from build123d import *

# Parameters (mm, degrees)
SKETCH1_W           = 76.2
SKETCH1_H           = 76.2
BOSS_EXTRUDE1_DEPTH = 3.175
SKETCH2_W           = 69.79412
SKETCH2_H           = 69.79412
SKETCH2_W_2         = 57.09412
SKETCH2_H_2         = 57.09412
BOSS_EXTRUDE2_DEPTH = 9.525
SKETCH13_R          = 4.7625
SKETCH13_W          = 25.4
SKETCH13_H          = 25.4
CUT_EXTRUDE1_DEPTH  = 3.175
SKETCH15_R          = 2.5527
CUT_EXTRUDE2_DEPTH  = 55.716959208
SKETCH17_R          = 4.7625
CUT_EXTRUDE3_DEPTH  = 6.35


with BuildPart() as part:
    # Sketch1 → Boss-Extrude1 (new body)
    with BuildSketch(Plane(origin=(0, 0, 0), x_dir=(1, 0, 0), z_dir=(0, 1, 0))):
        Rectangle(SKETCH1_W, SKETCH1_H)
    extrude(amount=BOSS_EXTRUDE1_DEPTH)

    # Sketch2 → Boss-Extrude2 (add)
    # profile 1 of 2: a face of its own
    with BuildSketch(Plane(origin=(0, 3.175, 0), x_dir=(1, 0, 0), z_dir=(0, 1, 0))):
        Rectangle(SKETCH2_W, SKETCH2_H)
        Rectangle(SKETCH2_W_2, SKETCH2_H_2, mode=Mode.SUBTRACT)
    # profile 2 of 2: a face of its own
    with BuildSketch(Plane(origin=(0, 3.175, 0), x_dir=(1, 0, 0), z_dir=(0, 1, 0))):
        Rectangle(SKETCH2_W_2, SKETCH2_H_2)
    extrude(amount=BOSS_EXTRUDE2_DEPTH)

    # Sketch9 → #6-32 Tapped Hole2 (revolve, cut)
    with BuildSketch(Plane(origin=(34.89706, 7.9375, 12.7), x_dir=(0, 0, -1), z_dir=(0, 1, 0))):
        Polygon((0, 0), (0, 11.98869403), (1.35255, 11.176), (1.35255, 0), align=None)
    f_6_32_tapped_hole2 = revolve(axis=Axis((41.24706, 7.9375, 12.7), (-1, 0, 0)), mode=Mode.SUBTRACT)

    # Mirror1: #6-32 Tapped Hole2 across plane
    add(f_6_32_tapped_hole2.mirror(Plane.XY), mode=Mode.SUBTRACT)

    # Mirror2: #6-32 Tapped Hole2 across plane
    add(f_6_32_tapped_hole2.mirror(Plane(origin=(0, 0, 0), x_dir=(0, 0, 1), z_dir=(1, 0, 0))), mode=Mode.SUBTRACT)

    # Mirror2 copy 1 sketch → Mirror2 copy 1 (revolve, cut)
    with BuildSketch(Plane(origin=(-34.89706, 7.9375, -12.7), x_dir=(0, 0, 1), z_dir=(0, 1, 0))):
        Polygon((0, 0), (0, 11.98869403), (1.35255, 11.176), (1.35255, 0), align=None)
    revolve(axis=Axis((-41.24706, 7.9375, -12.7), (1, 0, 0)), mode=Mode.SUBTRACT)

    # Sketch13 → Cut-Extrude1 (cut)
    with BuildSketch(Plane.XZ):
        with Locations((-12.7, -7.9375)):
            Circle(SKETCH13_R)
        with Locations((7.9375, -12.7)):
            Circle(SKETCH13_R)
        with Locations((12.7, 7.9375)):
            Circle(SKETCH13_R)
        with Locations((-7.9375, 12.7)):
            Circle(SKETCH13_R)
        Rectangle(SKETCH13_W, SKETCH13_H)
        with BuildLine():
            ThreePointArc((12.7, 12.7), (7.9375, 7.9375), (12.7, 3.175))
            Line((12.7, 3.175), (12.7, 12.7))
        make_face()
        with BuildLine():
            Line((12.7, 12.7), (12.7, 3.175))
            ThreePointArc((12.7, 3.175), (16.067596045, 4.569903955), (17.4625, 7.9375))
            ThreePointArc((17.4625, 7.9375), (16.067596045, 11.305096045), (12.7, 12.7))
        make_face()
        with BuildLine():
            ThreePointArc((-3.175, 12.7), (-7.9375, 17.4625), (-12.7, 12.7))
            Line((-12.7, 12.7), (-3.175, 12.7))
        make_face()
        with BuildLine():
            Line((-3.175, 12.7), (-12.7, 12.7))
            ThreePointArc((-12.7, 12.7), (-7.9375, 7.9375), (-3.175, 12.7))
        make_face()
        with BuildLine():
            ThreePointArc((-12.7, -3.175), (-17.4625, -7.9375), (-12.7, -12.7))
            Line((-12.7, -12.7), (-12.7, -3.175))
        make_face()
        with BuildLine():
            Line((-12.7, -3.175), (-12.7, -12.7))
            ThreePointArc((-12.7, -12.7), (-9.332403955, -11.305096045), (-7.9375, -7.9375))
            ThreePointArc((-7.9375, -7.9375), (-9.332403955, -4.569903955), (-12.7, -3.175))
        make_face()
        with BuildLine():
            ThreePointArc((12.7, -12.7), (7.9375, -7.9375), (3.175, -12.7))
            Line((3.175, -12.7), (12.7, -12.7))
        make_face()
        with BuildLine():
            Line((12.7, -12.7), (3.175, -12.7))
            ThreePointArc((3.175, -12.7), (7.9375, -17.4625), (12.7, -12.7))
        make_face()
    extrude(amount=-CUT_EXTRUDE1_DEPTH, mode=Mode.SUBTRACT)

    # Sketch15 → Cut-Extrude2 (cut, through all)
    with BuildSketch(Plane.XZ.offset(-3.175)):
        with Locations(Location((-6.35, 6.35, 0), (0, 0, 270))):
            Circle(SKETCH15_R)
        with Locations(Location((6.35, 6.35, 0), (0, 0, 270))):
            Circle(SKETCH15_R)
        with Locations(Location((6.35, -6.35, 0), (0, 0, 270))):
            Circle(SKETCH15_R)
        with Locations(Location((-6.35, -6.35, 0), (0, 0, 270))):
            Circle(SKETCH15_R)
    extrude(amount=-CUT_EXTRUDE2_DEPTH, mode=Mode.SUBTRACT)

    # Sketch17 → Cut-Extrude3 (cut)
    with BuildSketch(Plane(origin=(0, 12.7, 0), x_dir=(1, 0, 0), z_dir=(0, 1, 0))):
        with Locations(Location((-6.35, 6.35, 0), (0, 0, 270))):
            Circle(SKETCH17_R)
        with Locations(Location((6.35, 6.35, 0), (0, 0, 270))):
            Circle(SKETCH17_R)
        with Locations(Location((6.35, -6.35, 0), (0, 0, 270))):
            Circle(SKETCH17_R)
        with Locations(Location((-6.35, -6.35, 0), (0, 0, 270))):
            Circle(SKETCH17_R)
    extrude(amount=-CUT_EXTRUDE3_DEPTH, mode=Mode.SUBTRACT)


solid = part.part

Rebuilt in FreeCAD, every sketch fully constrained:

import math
import FreeCAD as App
import Part
import Sketcher
from FreeCAD import Vector
Q = App.Units.Quantity


def add_polygon(sketch, points):
    """Adds a closed chain of lines whose ends are joined by coincident constraints."""
    first, n = sketch.GeometryCount, len(points)
    for a, b in zip(points, points[1:] + points[:1]):
        sketch.addGeometry(Part.LineSegment(App.Vector(*a, 0), App.Vector(*b, 0)), False)
    for i in range(n):
        sketch.addConstraint(Sketcher.Constraint("Coincident", first + i, 2, first + (i + 1) % n, 1))

doc = App.newDocument("Part")
body = doc.addObject("PartDesign::Body", "Body")

# Sketch on XZ plane
sketch1 = doc.addObject("Sketcher::SketchObject", "Sketch")
body.addObject(sketch1)
sketch1.AttachmentSupport = (doc.XZ_Plane, [""])
sketch1.MapMode = "FlatFace"
add_polygon(sketch1, [(-38, -38), (-38, 38), (38, 38), (38, -38)])  # lines 0-3
sketch1.addConstraint(Sketcher.Constraint("Vertical", 0))
sketch1.addConstraint(Sketcher.Constraint("Horizontal", 1))
sketch1.addConstraint(Sketcher.Constraint("Vertical", 2))
sketch1.addConstraint(Sketcher.Constraint("Horizontal", 3))
sketch1.addConstraint(Sketcher.Constraint("Symmetric", 0, 2, 2, 2, -1, 1))
sketch1.addConstraint(Sketcher.Constraint("Equal", 3, 0))
sketch1.addConstraint(Sketcher.Constraint("DistanceX", 1, 1, 1, 2, Q("3 in")))
pad1 = doc.addObject("PartDesign::Pad", "Pad")
body.addObject(pad1)
pad1.Profile = sketch1
pad1.Length = Q("0.125 in")
pad1.Reversed = True

# Sketch on XZ plane
sketch2 = doc.addObject("Sketcher::SketchObject", "Sketch001")
body.addObject(sketch2)
sketch2.AttachmentSupport = (doc.XZ_Plane, [""])
sketch2.MapMode = "FlatFace"
sketch2.AttachmentOffset = App.Placement(Vector(0, 0, -0.125 * 25.4), App.Rotation())
add_polygon(sketch2, [(-35, -35), (-35, 35), (35, 35), (35, -35)])  # lines 0-3
sketch2.addConstraint(Sketcher.Constraint("Vertical", 0))
sketch2.addConstraint(Sketcher.Constraint("Horizontal", 1))
sketch2.addConstraint(Sketcher.Constraint("Vertical", 2))
sketch2.addConstraint(Sketcher.Constraint("Horizontal", 3))
sketch2.addConstraint(Sketcher.Constraint("Symmetric", 0, 2, 2, 2, -1, 1))
sketch2.addConstraint(Sketcher.Constraint("Equal", 3, 0))
sketch2.addConstraint(Sketcher.Constraint("DistanceX", 1, 1, 1, 2, Q("2.7478 in")))
pad2 = doc.addObject("PartDesign::Pad", "Pad001")
body.addObject(pad2)
pad2.Profile = sketch2
pad2.Length = Q("0.375 in")
pad2.Reversed = True

# Sketch on XZ plane
sketch3 = doc.addObject("Sketcher::SketchObject", "Sketch002")
body.addObject(sketch3)
sketch3.AttachmentSupport = (doc.XZ_Plane, [""])
sketch3.MapMode = "FlatFace"
sketch3.AttachmentOffset = App.Placement(Vector(0, 0, -0.3125 * 25.4), App.Rotation())
add_polygon(sketch3, [(22.9, 12.7), (34.9, 12.7), (34.9, 11.3), (23.7, 11.3)])  # lines 0-3
sketch3.addGeometry(Part.LineSegment(Vector(34.9, 12.7, 0), Vector(22.9, 12.7, 0)), True)  # axis
sketch3.addConstraint(Sketcher.Constraint("Horizontal", 0))
sketch3.addConstraint(Sketcher.Constraint("Vertical", 1))
sketch3.addConstraint(Sketcher.Constraint("Horizontal", 2))
sketch3.addConstraint(Sketcher.Constraint("Horizontal", 4))
sketch3.addConstraint(Sketcher.Constraint("Coincident", 4, 1, 0, 2))
sketch3.addConstraint(Sketcher.Constraint("Equal", 0, 4))
sketch3.addConstraint(Sketcher.Constraint("Angle", 3, Q("121 deg")))
sketch3.addConstraint(Sketcher.Constraint("DistanceX", 2, 2, 2, 1, Q("0.44 in")))
sketch3.addConstraint(Sketcher.Constraint("DistanceY", -1, 1, 0, 2, Q("0.5 in")))
sketch3.addConstraint(Sketcher.Constraint("DistanceX", -1, 1, 0, 2, Q("1.3739 in")))
sketch3.addConstraint(Sketcher.Constraint("DistanceY", 1, 2, 1, 1, Q("1.35255 mm")))
groove = doc.addObject("PartDesign::Groove", "Groove")
body.addObject(groove)
groove.Profile = sketch3
groove.ReferenceAxis = (sketch3, ["Axis0"])
groove.Angle = 360
doc.recompute()

mirrored = doc.addObject("PartDesign::Mirrored", "Mirrored")
body.addObject(mirrored)
mirrored.Originals = [groove]
mirrored.MirrorPlane = (doc.XY_Plane, [""])
body.Tip = mirrored
doc.recompute()

mirrored2 = doc.addObject("PartDesign::Mirrored", "Mirrored001")
body.addObject(mirrored2)
mirrored2.Originals = [groove]
mirrored2.MirrorPlane = (doc.YZ_Plane, [""])
body.Tip = mirrored2

# Sketch on XZ plane
sketch4 = doc.addObject("Sketcher::SketchObject", "Sketch003")
body.addObject(sketch4)
sketch4.AttachmentSupport = (doc.XZ_Plane, [""])
sketch4.MapMode = "FlatFace"
sketch4.AttachmentOffset = App.Placement(Vector(0, 0, -0.3125 * 25.4), App.Rotation())
add_polygon(sketch4, [(-22.9, -12.7), (-34.9, -12.7), (-34.9, -11.3), (-23.7, -11.3)])  # lines 0-3
sketch4.addGeometry(Part.LineSegment(Vector(-34.9, -12.7, 0), Vector(-22.9, -12.7, 0)), True)  # axis
sketch4.addConstraint(Sketcher.Constraint("Horizontal", 0))
sketch4.addConstraint(Sketcher.Constraint("Vertical", 1))
sketch4.addConstraint(Sketcher.Constraint("Horizontal", 2))
sketch4.addConstraint(Sketcher.Constraint("Horizontal", 4))
sketch4.addConstraint(Sketcher.Constraint("Coincident", 4, 1, 0, 2))
sketch4.addConstraint(Sketcher.Constraint("Equal", 0, 4))
sketch4.addConstraint(Sketcher.Constraint("Angle", 3, Q("-59 deg")))
sketch4.addConstraint(Sketcher.Constraint("DistanceX", 2, 1, 2, 2, Q("0.44 in")))
sketch4.addConstraint(Sketcher.Constraint("DistanceY", 0, 2, -1, 1, Q("0.5 in")))
sketch4.addConstraint(Sketcher.Constraint("DistanceX", 0, 2, -1, 1, Q("1.3739 in")))
sketch4.addConstraint(Sketcher.Constraint("DistanceY", 1, 1, 1, 2, Q("1.35255 mm")))
groove2 = doc.addObject("PartDesign::Groove", "Groove001")
body.addObject(groove2)
groove2.Profile = sketch4
groove2.ReferenceAxis = (sketch4, ["Axis0"])
groove2.Angle = 360

# Sketch on XZ plane
sketch5 = doc.addObject("Sketcher::SketchObject", "Sketch004")
body.addObject(sketch5)
sketch5.AttachmentSupport = (doc.XZ_Plane, [""])
sketch5.MapMode = "FlatFace"
sketch5.addGeometry(Part.LineSegment(Vector(-12.7, 12.7, 0), Vector(-12.7, -3.2, 0)), False)
sketch5.addGeometry(Part.ArcOfCircle(Part.Circle(Vector(-12.7, -7.9, 0), Vector(0, 0, 1), 4.8), math.radians(90), math.radians(270)), False)
sketch5.addGeometry(Part.LineSegment(Vector(-12.7, -12.7, 0), Vector(3.2, -12.7, 0)), False)
sketch5.addGeometry(Part.ArcOfCircle(Part.Circle(Vector(7.9, -12.7, 0), Vector(0, 0, 1), 4.8), math.radians(180), math.radians(360)), False)
sketch5.addGeometry(Part.LineSegment(Vector(12.7, -12.7, 0), Vector(12.7, 3.2, 0)), False)
sketch5.addGeometry(Part.ArcOfCircle(Part.Circle(Vector(12.7, 7.9, 0), Vector(0, 0, 1), 4.8), math.radians(-90), math.radians(90)), False)
sketch5.addGeometry(Part.LineSegment(Vector(12.7, 12.7, 0), Vector(-3.2, 12.7, 0)), False)
sketch5.addGeometry(Part.ArcOfCircle(Part.Circle(Vector(-7.9, 12.7, 0), Vector(0, 0, 1), 4.8), math.radians(0), math.radians(180)), False)
sketch5.addConstraint(Sketcher.Constraint("Coincident", 0, 2, 1, 1))
sketch5.addConstraint(Sketcher.Constraint("Tangent", 1, 2, 2, 1))
sketch5.addConstraint(Sketcher.Constraint("Coincident", 2, 2, 3, 1))
sketch5.addConstraint(Sketcher.Constraint("Tangent", 3, 2, 4, 1))
sketch5.addConstraint(Sketcher.Constraint("Coincident", 4, 2, 5, 1))
sketch5.addConstraint(Sketcher.Constraint("Tangent", 5, 2, 6, 1))
sketch5.addConstraint(Sketcher.Constraint("Coincident", 6, 2, 7, 1))
sketch5.addConstraint(Sketcher.Constraint("Tangent", 7, 2, 0, 1))
sketch5.addConstraint(Sketcher.Constraint("Vertical", 0))
sketch5.addConstraint(Sketcher.Constraint("Horizontal", 2))
sketch5.addConstraint(Sketcher.Constraint("Vertical", 4))
sketch5.addConstraint(Sketcher.Constraint("Horizontal", 6))
sketch5.addConstraint(Sketcher.Constraint("Equal", 1, 3))
sketch5.addConstraint(Sketcher.Constraint("Equal", 3, 5))
sketch5.addConstraint(Sketcher.Constraint("Equal", 5, 7))
sketch5.addConstraint(Sketcher.Constraint("Symmetric", 1, 3, 5, 3, -1, 1))
sketch5.addConstraint(Sketcher.Constraint("Symmetric", 3, 3, 7, 3, -1, 1))
sketch5.addConstraint(Sketcher.Constraint("Symmetric", 1, 2, 3, 2, -2))
sketch5.addConstraint(Sketcher.Constraint("Equal", 6, 0))
sketch5.addConstraint(Sketcher.Constraint("Radius", 1, Q("0.1875 in")))
sketch5.addConstraint(Sketcher.Constraint("DistanceX", 1, 3, 5, 3, Q("1 in")))
pocket1 = doc.addObject("PartDesign::Pocket", "Pocket")
body.addObject(pocket1)
pocket1.Profile = sketch5
pocket1.Length = Q("0.125 in")

# Sketch on XZ plane
sketch6 = doc.addObject("Sketcher::SketchObject", "Sketch005")
body.addObject(sketch6)
sketch6.AttachmentSupport = (doc.XZ_Plane, [""])
sketch6.MapMode = "FlatFace"
sketch6.AttachmentOffset = App.Placement(Vector(0, 0, -0.125 * 25.4), App.Rotation())
sketch6.addGeometry(Part.Circle(Vector(-6.3, 6.3, 0), Vector(0, 0, 1), 2.6), False)
sketch6.addGeometry(Part.Circle(Vector(6.3, 6.3, 0), Vector(0, 0, 1), 2.6), False)
sketch6.addGeometry(Part.Circle(Vector(6.3, -6.3, 0), Vector(0, 0, 1), 2.6), False)
sketch6.addGeometry(Part.Circle(Vector(-6.3, -6.3, 0), Vector(0, 0, 1), 2.6), False)
sketch6.addConstraint(Sketcher.Constraint("Equal", 0, 1))
sketch6.addConstraint(Sketcher.Constraint("Equal", 1, 2))
sketch6.addConstraint(Sketcher.Constraint("Equal", 2, 3))
sketch6.addConstraint(Sketcher.Constraint("Symmetric", 0, 3, 2, 3, -1, 1))
sketch6.addConstraint(Sketcher.Constraint("Symmetric", 1, 3, 3, 3, -1, 1))
sketch6.addConstraint(Sketcher.Constraint("Symmetric", 0, 3, 1, 3, -2))
sketch6.addConstraint(Sketcher.Constraint("Diameter", 0, Q("0.201 in")))
sketch6.addConstraint(Sketcher.Constraint("DistanceX", 0, 3, 1, 3, Q("0.5 in")))
sketch6.addConstraint(Sketcher.Constraint("DistanceY", 2, 3, 1, 3, Q("0.5 in")))
pocket2 = doc.addObject("PartDesign::Pocket", "Pocket001")
body.addObject(pocket2)
pocket2.Profile = sketch6
pocket2.Type = "ThroughAll"

# Sketch on XZ plane
sketch7 = doc.addObject("Sketcher::SketchObject", "Sketch006")
body.addObject(sketch7)
sketch7.AttachmentSupport = (doc.XZ_Plane, [""])
sketch7.MapMode = "FlatFace"
sketch7.AttachmentOffset = App.Placement(Vector(0, 0, -0.5 * 25.4), App.Rotation())
sketch7.addGeometry(Part.Circle(Vector(-6.3, -6.3, 0), Vector(0, 0, 1), 4.8), False)
sketch7.addGeometry(Part.Circle(Vector(6.3, -6.3, 0), Vector(0, 0, 1), 4.8), False)
sketch7.addGeometry(Part.Circle(Vector(6.3, 6.3, 0), Vector(0, 0, 1), 4.8), False)
sketch7.addGeometry(Part.Circle(Vector(-6.3, 6.3, 0), Vector(0, 0, 1), 4.8), False)
sketch7.addConstraint(Sketcher.Constraint("Equal", 0, 1))
sketch7.addConstraint(Sketcher.Constraint("Equal", 1, 2))
sketch7.addConstraint(Sketcher.Constraint("Equal", 2, 3))
sketch7.addConstraint(Sketcher.Constraint("Symmetric", 0, 3, 2, 3, -1, 1))
sketch7.addConstraint(Sketcher.Constraint("Symmetric", 1, 3, 3, 3, -1, 1))
sketch7.addConstraint(Sketcher.Constraint("Symmetric", 0, 3, 1, 3, -2))
sketch7.addConstraint(Sketcher.Constraint("Diameter", 0, Q("0.375 in")))
sketch7.addConstraint(Sketcher.Constraint("DistanceX", 0, 3, 1, 3, Q("0.5 in")))
sketch7.addConstraint(Sketcher.Constraint("DistanceY", 1, 3, 2, 3, Q("0.5 in")))
pocket3 = doc.addObject("PartDesign::Pocket", "Pocket002")
body.addObject(pocket3)
pocket3.Profile = sketch7
pocket3.Length = Q("0.25 in")
pocket3.Reversed = True

doc.recompute()
